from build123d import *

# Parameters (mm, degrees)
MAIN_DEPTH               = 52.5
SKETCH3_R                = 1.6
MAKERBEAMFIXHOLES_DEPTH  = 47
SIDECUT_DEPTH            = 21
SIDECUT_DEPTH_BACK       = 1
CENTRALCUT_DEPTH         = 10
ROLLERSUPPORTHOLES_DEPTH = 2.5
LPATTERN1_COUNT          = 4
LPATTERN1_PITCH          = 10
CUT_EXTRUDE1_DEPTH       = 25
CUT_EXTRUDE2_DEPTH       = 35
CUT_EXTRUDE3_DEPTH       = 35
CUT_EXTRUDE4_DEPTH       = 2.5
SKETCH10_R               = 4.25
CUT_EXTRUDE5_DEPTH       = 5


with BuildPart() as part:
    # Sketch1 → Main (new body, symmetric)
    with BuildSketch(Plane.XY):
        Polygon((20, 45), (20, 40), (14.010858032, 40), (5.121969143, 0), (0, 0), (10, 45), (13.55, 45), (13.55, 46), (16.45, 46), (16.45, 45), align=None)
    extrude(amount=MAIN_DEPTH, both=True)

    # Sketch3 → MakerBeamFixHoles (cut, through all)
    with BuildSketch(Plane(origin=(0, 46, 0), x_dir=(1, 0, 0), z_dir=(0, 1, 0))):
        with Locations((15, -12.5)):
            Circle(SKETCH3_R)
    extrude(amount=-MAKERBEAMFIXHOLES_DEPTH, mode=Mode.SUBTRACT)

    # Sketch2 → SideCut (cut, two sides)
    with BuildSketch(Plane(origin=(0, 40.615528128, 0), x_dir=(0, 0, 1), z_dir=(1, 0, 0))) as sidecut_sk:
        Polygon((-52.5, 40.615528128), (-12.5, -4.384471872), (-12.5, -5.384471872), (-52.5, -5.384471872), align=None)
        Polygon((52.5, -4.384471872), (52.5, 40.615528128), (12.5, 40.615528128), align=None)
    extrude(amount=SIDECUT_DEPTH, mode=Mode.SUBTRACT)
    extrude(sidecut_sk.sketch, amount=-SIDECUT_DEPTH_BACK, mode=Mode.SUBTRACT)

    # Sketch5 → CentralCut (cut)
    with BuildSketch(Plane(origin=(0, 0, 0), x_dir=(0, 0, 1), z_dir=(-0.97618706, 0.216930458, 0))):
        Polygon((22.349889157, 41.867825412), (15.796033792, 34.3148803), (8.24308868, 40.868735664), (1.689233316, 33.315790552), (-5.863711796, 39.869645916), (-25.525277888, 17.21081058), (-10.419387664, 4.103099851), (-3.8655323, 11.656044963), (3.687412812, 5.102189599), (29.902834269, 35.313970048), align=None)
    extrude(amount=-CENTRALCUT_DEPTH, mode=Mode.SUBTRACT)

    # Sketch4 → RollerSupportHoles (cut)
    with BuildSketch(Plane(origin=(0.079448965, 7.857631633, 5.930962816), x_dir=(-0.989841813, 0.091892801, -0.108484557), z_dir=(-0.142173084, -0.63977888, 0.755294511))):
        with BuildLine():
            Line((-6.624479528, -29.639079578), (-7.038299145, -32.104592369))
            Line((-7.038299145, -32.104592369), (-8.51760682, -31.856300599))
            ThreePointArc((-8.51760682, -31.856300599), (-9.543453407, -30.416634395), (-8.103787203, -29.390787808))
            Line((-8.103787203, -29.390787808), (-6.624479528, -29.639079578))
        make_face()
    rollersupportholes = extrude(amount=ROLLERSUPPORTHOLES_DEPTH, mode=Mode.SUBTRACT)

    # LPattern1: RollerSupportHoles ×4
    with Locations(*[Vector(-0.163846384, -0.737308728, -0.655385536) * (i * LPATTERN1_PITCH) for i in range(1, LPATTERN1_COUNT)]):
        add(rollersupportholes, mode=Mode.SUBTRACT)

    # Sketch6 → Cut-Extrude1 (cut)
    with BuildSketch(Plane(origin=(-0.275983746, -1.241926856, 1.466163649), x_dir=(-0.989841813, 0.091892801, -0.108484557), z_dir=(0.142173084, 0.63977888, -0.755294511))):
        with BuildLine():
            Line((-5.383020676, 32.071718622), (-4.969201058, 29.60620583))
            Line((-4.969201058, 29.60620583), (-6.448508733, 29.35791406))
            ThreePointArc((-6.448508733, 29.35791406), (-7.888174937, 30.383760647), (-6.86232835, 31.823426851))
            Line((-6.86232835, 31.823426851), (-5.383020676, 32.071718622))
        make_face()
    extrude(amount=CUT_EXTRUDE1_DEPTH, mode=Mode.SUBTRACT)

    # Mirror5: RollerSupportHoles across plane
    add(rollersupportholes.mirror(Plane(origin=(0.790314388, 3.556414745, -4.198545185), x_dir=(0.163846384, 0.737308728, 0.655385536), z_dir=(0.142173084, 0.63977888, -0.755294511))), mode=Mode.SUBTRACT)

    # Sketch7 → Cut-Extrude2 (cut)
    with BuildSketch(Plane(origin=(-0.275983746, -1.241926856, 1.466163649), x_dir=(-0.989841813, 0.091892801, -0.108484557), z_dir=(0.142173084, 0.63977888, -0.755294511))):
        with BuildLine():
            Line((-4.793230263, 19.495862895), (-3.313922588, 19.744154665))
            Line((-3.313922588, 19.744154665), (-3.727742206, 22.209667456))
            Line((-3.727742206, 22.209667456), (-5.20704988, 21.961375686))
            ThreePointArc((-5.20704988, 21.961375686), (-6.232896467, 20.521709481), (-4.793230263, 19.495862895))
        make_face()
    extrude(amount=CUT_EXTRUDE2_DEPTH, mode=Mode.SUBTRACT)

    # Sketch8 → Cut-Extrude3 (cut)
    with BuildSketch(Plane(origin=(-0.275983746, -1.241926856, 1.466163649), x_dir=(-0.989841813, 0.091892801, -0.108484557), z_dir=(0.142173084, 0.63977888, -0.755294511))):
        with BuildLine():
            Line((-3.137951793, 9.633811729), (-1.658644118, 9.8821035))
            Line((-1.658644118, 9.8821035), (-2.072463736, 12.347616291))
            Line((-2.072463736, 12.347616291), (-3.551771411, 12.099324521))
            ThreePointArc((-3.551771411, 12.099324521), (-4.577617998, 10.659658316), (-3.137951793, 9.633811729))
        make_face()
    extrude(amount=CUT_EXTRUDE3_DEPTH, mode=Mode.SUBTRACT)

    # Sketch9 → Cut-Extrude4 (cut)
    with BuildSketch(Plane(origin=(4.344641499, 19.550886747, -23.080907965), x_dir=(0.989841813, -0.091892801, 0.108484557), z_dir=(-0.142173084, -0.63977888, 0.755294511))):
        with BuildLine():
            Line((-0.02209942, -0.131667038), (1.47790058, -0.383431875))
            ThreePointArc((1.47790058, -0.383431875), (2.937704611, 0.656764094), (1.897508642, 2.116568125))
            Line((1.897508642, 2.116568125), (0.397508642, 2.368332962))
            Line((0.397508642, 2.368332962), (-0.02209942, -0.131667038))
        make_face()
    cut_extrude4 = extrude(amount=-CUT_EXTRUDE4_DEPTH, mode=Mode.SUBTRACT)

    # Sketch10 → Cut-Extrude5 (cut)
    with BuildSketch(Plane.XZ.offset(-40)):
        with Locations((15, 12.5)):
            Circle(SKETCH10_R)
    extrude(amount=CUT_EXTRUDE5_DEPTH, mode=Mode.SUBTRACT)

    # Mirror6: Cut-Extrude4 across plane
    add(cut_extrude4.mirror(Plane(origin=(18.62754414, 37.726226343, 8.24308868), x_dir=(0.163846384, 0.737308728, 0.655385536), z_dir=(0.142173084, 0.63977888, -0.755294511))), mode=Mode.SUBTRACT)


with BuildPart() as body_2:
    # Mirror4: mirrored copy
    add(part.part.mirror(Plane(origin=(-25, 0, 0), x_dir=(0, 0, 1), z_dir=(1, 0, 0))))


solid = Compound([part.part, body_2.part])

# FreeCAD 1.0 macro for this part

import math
import FreeCAD as App
import Part
import Sketcher
from FreeCAD import Vector
Q = App.Units.Quantity


def add_polygon(sketch, points):
    """Adds a closed chain of lines whose ends are joined by coincident constraints."""
    first, n = sketch.GeometryCount, len(points)
    for a, b in zip(points, points[1:] + points[:1]):
        sketch.addGeometry(Part.LineSegment(App.Vector(*a, 0), App.Vector(*b, 0)), False)
    for i in range(n):
        sketch.addConstraint(Sketcher.Constraint("Coincident", first + i, 2, first + (i + 1) % n, 1))

doc = App.newDocument("Part")
params = doc.addObject("Spreadsheet::Sheet", "Params")
for row, (alias, value) in enumerate([
    ("sketch1_height", "5 mm"),
    ("sketch1_height2", "1 mm"),
    ("sketch1_width", "2.9 mm"),
    ("pad1_length", "105 mm"),
    ("sketch2_diameter", "3.2 mm"),
    ("sketch3_width", "46 mm"),
    ("sketch3_width2", "1 mm"),
    ("sketch3_height", "40 mm"),
    ("sketch4_length", "10 mm"),
    ("sketch4_length2", "30 mm"),
    ("pocket3_length", "10 mm"),
    ("sketch5_radius", "1.25 mm"),
    ("sketch5_length", "1.5 mm"),
    ("pocket4_length", "2.5 mm"),
    ("linearpattern_pitch", "10 mm"),
    ("sketch6_radius", "1.25 mm"),
    ("sketch6_length", "1.5 mm"),
    ("pocket5_length", "25 mm"),
    ("sketch7_radius", "1.25 mm"),
    ("sketch7_length", "1.5 mm"),
    ("pocket6_length", "35 mm"),
    ("sketch8_radius", "1.25 mm"),
    ("sketch8_length", "1.5 mm"),
    ("pocket7_length", "35 mm"),
    ("pocket8_length", "2.5 mm"),
    ("sketch10_diameter", "8.5 mm"),
    ("pocket9_length", "5 mm"),
], start=1):
    params.set(f"A{row}", alias)
    params.set(f"B{row}", "=" + value)
    params.setAlias(f"B{row}", alias)

body = doc.addObject("PartDesign::Body", "Body")

sketch1 = body.newObject("Sketcher::SketchObject", "Sketch")
sketch1.AttachmentSupport = (doc.getObject("XY_Plane"), [""])
sketch1.MapMode = "FlatFace"
add_polygon(sketch1, [(20, 40), (20, 45), (16.45, 45), (16.45, 46), (13.55, 46), (13.55, 45), (10, 45), (0, 0), (5.121969, 0), (14.010858, 40)])
sketch1.addConstraint([
    Sketcher.Constraint("Vertical", 0),
    Sketcher.Constraint("Horizontal", 1),
    Sketcher.Constraint("Vertical", 2),
    Sketcher.Constraint("Horizontal", 3),
    Sketcher.Constraint("Vertical", 4),
    Sketcher.Constraint("Horizontal", 5),
    Sketcher.Constraint("Horizontal", 7),
    Sketcher.Constraint("Horizontal", 9),
    Sketcher.Constraint("Coincident", 6, 2, -1, 1),
    Sketcher.Constraint("Parallel", 6, 8),
    Sketcher.Constraint("Horizontal", 1, 2, 4, 2),
    Sketcher.Constraint("Equal", 1, 5),
    Sketcher.Constraint("DistanceY", 0, 1, 0, 2, Q("5 mm")),
    Sketcher.Constraint("DistanceY", 2, 1, 2, 2, Q("1 mm")),
    Sketcher.Constraint("DistanceX", 3, 2, 3, 1, Q("2.9 mm")),
    Sketcher.Constraint("DistanceX", -1, 1, 0, 2, Q("20 mm")),
    Sketcher.Constraint("DistanceY", -1, 1, 0, 2, Q("45 mm")),
    Sketcher.Constraint("DistanceX", -1, 1, 5, 2, Q("10 mm")),
    Sketcher.Constraint("DistanceX", 7, 1, 7, 2, Q("5.121969 mm")),
])
sketch1.setExpression("Constraints[22]", "Params.sketch1_height")
sketch1.setExpression("Constraints[23]", "Params.sketch1_height2")
sketch1.setExpression("Constraints[24]", "Params.sketch1_width")
pad1 = body.newObject("PartDesign::Pad", "Pad")
pad1.Profile = sketch1
pad1.setExpression("Length", "Params.pad1_length")
pad1.Midplane = True

sketch2 = body.newObject("Sketcher::SketchObject", "Sketch001")
sketch2.AttachmentSupport = (doc.getObject("XZ_Plane"), [""])
sketch2.MapMode = "FlatFace"
sketch2.AttachmentOffset = App.Placement(Vector(0, 0, -46), App.Rotation())
sketch2.addGeometry(Part.Circle(Vector(15, 12.5, 0), Vector(0, 0, 1), 1.6), False)
sketch2.addConstraint([
    Sketcher.Constraint("Diameter", 0, Q("3.2 mm")),
    Sketcher.Constraint("DistanceX", -1, 1, 0, 3, Q("15 mm")),
    Sketcher.Constraint("DistanceY", -1, 1, 0, 3, Q("12.5 mm")),
])
sketch2.setExpression("Constraints[0]", "Params.sketch2_diameter")
pocket1 = body.newObject("PartDesign::Pocket", "Pocket")
pocket1.Profile = sketch2
pocket1.Type = "ThroughAll"
pocket1.Reversed = True

sketch3 = body.newObject("Sketcher::SketchObject", "Sketch002")
sketch3.AttachmentSupport = (doc.getObject("YZ_Plane"), [""])
sketch3.MapMode = "FlatFace"
add_polygon(sketch3, [(45, -12.5), (0, -52.5), (46, -52.5), (46, -12.5)])
add_polygon(sketch3, [(45, 52.5), (0, 52.5), (0, 12.5)])
sketch3.addConstraint([
    Sketcher.Constraint("Horizontal", 1),
    Sketcher.Constraint("Vertical", 2),
    Sketcher.Constraint("Horizontal", 3),
    Sketcher.Constraint("Horizontal", 4),
    Sketcher.Constraint("Vertical", 5),
    Sketcher.Constraint("Symmetric", 0, 2, 4, 2, -1, 1),
    Sketcher.Constraint("PointOnObject", 0, 2, -2),
    Sketcher.Constraint("Parallel", 0, 6),
    Sketcher.Constraint("Vertical", 3, 2, 6, 2),
    Sketcher.Constraint("DistanceX", 1, 1, 1, 2, Q("46 mm")),
    Sketcher.Constraint("DistanceX", 3, 2, 3, 1, Q("1 mm")),
    Sketcher.Constraint("DistanceY", 2, 1, 2, 2, Q("40 mm")),
    Sketcher.Constraint("DistanceY", 3, 2, 4, 2, Q("65 mm")),
])
sketch3.setExpression("Constraints[16]", "Params.sketch3_width")
sketch3.setExpression("Constraints[17]", "Params.sketch3_width2")
sketch3.setExpression("Constraints[18]", "Params.sketch3_height")
pocket2 = body.newObject("PartDesign::Pocket", "Pocket001")
pocket2.Profile = sketch3
pocket2.Type = "ThroughAll"
pocket2.Midplane = True

sketch4 = body.newObject("Sketcher::SketchObject", "Sketch003")
sketch4.Placement = App.Placement(Vector(0, 0, 0), App.Rotation(Vector(0, 0, 1), Vector(0.216930458, 0.97618706, 0), Vector(-0.97618706, 0.216930458, 0), "ZXY"))
add_polygon(sketch4, [(22.349889, 41.867825), (15.796034, 34.31488), (8.243089, 40.868736), (1.689233, 33.315791), (-5.863712, 39.869646), (-25.525278, 17.210811), (-10.419388, 4.1031), (-3.865532, 11.656045), (3.687413, 5.10219), (29.902834, 35.31397)])
sketch4.addConstraint([
    Sketcher.Constraint("Perpendicular", 0, 1),
    Sketcher.Constraint("Perpendicular", 1, 2),
    Sketcher.Constraint("Perpendicular", 2, 3),
    Sketcher.Constraint("Perpendicular", 3, 4),
    Sketcher.Constraint("Perpendicular", 4, 5),
    Sketcher.Constraint("Perpendicular", 5, 6),
    Sketcher.Constraint("Perpendicular", 6, 7),
    Sketcher.Constraint("Perpendicular", 7, 8),
    Sketcher.Constraint("Perpendicular", 8, 9),
    Sketcher.Constraint("Equal", 0, 1),
    Sketcher.Constraint("Equal", 1, 2),
    Sketcher.Constraint("Equal", 2, 3),
    Sketcher.Constraint("Equal", 3, 6),
    Sketcher.Constraint("Equal", 6, 7),
    Sketcher.Constraint("Equal", 7, 9),
    Sketcher.Constraint("Distance", 0, Q("10 mm")),
    Sketcher.Constraint("Distance", 4, Q("30 mm")),
    Sketcher.Constraint("DistanceY", -1, 1, 5, 2, Q("4.1031 mm")),
    Sketcher.Constraint("DistanceX", 2, 2, 0, 2, Q("14.1068 mm")),
    Sketcher.Constraint("DistanceX", -1, 1, 1, 2, Q("8.243089 mm")),
])
sketch4.setExpression("Constraints[25]", "Params.sketch4_length")
sketch4.setExpression("Constraints[26]", "Params.sketch4_length2")
pocket3 = body.newObject("PartDesign::Pocket", "Pocket002")
pocket3.Profile = sketch4
pocket3.setExpression("Length", "Params.pocket3_length")

sketch5 = body.newObject("Sketcher::SketchObject", "Sketch004")
sketch5.Placement = App.Placement(Vector(0.079449, 7.857632, 5.930963), App.Rotation(Vector(-0.989841813, 0.091892801, -0.108484557), Vector(0, -0.763045672, -0.646344569), Vector(-0.142173084, -0.63977888, 0.755294511), "ZXY"))
sketch5.addGeometry([
    Part.LineSegment(Vector(-7.038299, -32.104592, 0), Vector(-6.62448, -29.63908, 0)),
    Part.LineSegment(Vector(-6.62448, -29.63908, 0), Vector(-8.103787, -29.390788, 0)),
    Part.ArcOfCircle(Part.Circle(Vector(-8.310697, -30.623544, 0), Vector(0, 0, 1), 1.25), math.radians(80.4721), math.radians(260.4721)),
    Part.LineSegment(Vector(-8.517607, -31.856301, 0), Vector(-7.038299, -32.104592, 0)),
], False)
sketch5.addConstraint([
    Sketcher.Constraint("Coincident", 0, 2, 1, 1),
    Sketcher.Constraint("Tangent", 1, 2, 2, 1),
    Sketcher.Constraint("Tangent", 2, 2, 3, 1),
    Sketcher.Constraint("Coincident", 3, 2, 0, 1),
    Sketcher.Constraint("Perpendicular", 0, 1),
    Sketcher.Constraint("Parallel", 1, 3),
    Sketcher.Constraint("Radius", 2, Q("1.25 mm")),
    Sketcher.Constraint("Distance", 1, Q("1.5 mm")),
    Sketcher.Constraint("DistanceY", 2, 2, -1, 1, Q("31.856301 mm")),
    Sketcher.Constraint("DistanceX", 3, 2, -1, 1, Q("7.038299 mm")),
    Sketcher.Constraint("DistanceX", 0, 2, -1, 1, Q("6.62448 mm")),
])
sketch5.setExpression("Constraints[6]", "Params.sketch5_radius")
sketch5.setExpression("Constraints[7]", "Params.sketch5_length")
pocket4 = body.newObject("PartDesign::Pocket", "Pocket003")
pocket4.Profile = sketch5
pocket4.setExpression("Length", "Params.pocket4_length")
pocket4.Reversed = True
doc.recompute()

datumline = body.newObject("PartDesign::Line", "DatumLine")
datumline.Placement = App.Placement(Vector(0, 0, 0), App.Rotation(Vector(0, 0, 1), Vector(-0.163846384, -0.737308728, -0.655385536)))
linearpattern = body.newObject("PartDesign::LinearPattern", "LinearPattern")
linearpattern.Originals = [pocket4]
linearpattern.Direction = (datumline, [""])
linearpattern.Mode = "offset"
linearpattern.setExpression("Offset", "Params.linearpattern_pitch")
linearpattern.Occurrences = 4
body.Tip = linearpattern

sketch6 = body.newObject("Sketcher::SketchObject", "Sketch005")
sketch6.Placement = App.Placement(Vector(-0.275984, -1.241927, 1.466164), App.Rotation(Vector(-0.989841813, 0.091892801, -0.108484557), Vector(0, 0.763045672, 0.646344569), Vector(0.142173084, 0.63977888, -0.755294511), "ZXY"))
sketch6.addGeometry([
    Part.LineSegment(Vector(-4.969201, 29.606206, 0), Vector(-5.383021, 32.071719, 0)),
    Part.LineSegment(Vector(-5.383021, 32.071719, 0), Vector(-6.862328, 31.823427, 0)),
    Part.ArcOfCircle(Part.Circle(Vector(-6.655419, 30.59067, 0), Vector(0, 0, 1), 1.25), math.radians(99.5279), math.radians(279.5279)),
    Part.LineSegment(Vector(-6.448509, 29.357914, 0), Vector(-4.969201, 29.606206, 0)),
], False)
sketch6.addConstraint([
    Sketcher.Constraint("Coincident", 0, 2, 1, 1),
    Sketcher.Constraint("Tangent", 1, 2, 2, 1),
    Sketcher.Constraint("Tangent", 2, 2, 3, 1),
    Sketcher.Constraint("Coincident", 3, 2, 0, 1),
    Sketcher.Constraint("Perpendicular", 0, 1),
    Sketcher.Constraint("Parallel", 1, 3),
    Sketcher.Constraint("Radius", 2, Q("1.25 mm")),
    Sketcher.Constraint("Distance", 1, Q("1.5 mm")),
    Sketcher.Constraint("DistanceX", 3, 2, -1, 1, Q("4.969201 mm")),
    Sketcher.Constraint("DistanceX", 2, 3, -1, 1, Q("6.655419 mm")),
    Sketcher.Constraint("DistanceY", -1, 1, 2, 3, Q("30.59067 mm")),
])
sketch6.setExpression("Constraints[6]", "Params.sketch6_radius")
sketch6.setExpression("Constraints[7]", "Params.sketch6_length")
pocket5 = body.newObject("PartDesign::Pocket", "Pocket004")
pocket5.Profile = sketch6
pocket5.setExpression("Length", "Params.pocket5_length")
pocket5.Reversed = True
doc.recompute()

datumplane = body.newObject("PartDesign::Plane", "DatumPlane")
datumplane.Placement = App.Placement(Vector(0.790314, 3.556415, -4.198545), App.Rotation(Vector(0, -0.763045672, -0.646344569), Vector(-0.989841812, 0.091892801, -0.108484556), Vector(0.142173084, 0.63977888, -0.755294511), "ZXY"))
mirrored = body.newObject("PartDesign::Mirrored", "Mirrored")
mirrored.Originals = [pocket4]
mirrored.MirrorPlane = (datumplane, [""])
body.Tip = mirrored

sketch7 = body.newObject("Sketcher::SketchObject", "Sketch006")
sketch7.Placement = App.Placement(Vector(-0.275984, -1.241927, 1.466164), App.Rotation(Vector(-0.989841813, 0.091892801, -0.108484557), Vector(0, 0.763045672, 0.646344569), Vector(0.142173084, 0.63977888, -0.755294511), "ZXY"))
sketch7.addGeometry([
    Part.LineSegment(Vector(-4.79323, 19.495863, 0), Vector(-3.313923, 19.744155, 0)),
    Part.LineSegment(Vector(-3.313923, 19.744155, 0), Vector(-3.727742, 22.209667, 0)),
    Part.LineSegment(Vector(-3.727742, 22.209667, 0), Vector(-5.20705, 21.961376, 0)),
    Part.ArcOfCircle(Part.Circle(Vector(-5.00014, 20.728619, 0), Vector(0, 0, 1), 1.25), math.radians(99.5279), math.radians(279.5279)),
], False)
sketch7.addConstraint([
    Sketcher.Constraint("Coincident", 0, 2, 1, 1),
    Sketcher.Constraint("Coincident", 1, 2, 2, 1),
    Sketcher.Constraint("Tangent", 2, 2, 3, 1),
    Sketcher.Constraint("Tangent", 3, 2, 0, 1),
    Sketcher.Constraint("Perpendicular", 0, 1),
    Sketcher.Constraint("Perpendicular", 1, 2),
    Sketcher.Constraint("Radius", 3, Q("1.25 mm")),
    Sketcher.Constraint("Distance", 0, Q("1.5 mm")),
    Sketcher.Constraint("DistanceX", 3, 3, -1, 1, Q("5.00014 mm")),
    Sketcher.Constraint("DistanceY", -1, 1, 3, 3, Q("20.728619 mm")),
    Sketcher.Constraint("DistanceX", 2, 2, -1, 1, Q("5.20705 mm")),
])
sketch7.setExpression("Constraints[6]", "Params.sketch7_radius")
sketch7.setExpression("Constraints[7]", "Params.sketch7_length")
pocket6 = body.newObject("PartDesign::Pocket", "Pocket005")
pocket6.Profile = sketch7
pocket6.setExpression("Length", "Params.pocket6_length")
pocket6.Reversed = True

sketch8 = body.newObject("Sketcher::SketchObject", "Sketch007")
sketch8.Placement = App.Placement(Vector(-0.275984, -1.241927, 1.466164), App.Rotation(Vector(-0.989841813, 0.091892801, -0.108484557), Vector(0, 0.763045672, 0.646344569), Vector(0.142173084, 0.63977888, -0.755294511), "ZXY"))
sketch8.addGeometry([
    Part.LineSegment(Vector(-3.137952, 9.633812, 0), Vector(-1.658644, 9.882104, 0)),
    Part.LineSegment(Vector(-1.658644, 9.882104, 0), Vector(-2.072464, 12.347616, 0)),
    Part.LineSegment(Vector(-2.072464, 12.347616, 0), Vector(-3.551771, 12.099325, 0)),
    Part.ArcOfCircle(Part.Circle(Vector(-3.344862, 10.866568, 0), Vector(0, 0, 1), 1.25), math.radians(99.5279), math.radians(279.5279)),
], False)
sketch8.addConstraint([
    Sketcher.Constraint("Coincident", 0, 2, 1, 1),
    Sketcher.Constraint("Coincident", 1, 2, 2, 1),
    Sketcher.Constraint("Tangent", 2, 2, 3, 1),
    Sketcher.Constraint("Tangent", 3, 2, 0, 1),
    Sketcher.Constraint("Perpendicular", 0, 1),
    Sketcher.Constraint("Perpendicular", 1, 2),
    Sketcher.Constraint("Radius", 3, Q("1.25 mm")),
    Sketcher.Constraint("Distance", 0, Q("1.5 mm")),
    Sketcher.Constraint("DistanceX", 3, 3, -1, 1, Q("3.344862 mm")),
    Sketcher.Constraint("DistanceY", -1, 1, 3, 3, Q("10.866568 mm")),
    Sketcher.Constraint("DistanceX", 2, 2, -1, 1, Q("3.551771 mm")),
])
sketch8.setExpression("Constraints[6]", "Params.sketch8_radius")
sketch8.setExpression("Constraints[7]", "Params.sketch8_length")
pocket7 = body.newObject("PartDesign::Pocket", "Pocket006")
pocket7.Profile = sketch8
pocket7.setExpression("Length", "Params.pocket7_length")
pocket7.Reversed = True

sketch9 = body.newObject("Sketcher::SketchObject", "Sketch008")
sketch9.Placement = App.Placement(Vector(4.344641, 19.550887, -23.080908), App.Rotation(Vector(0.989841813, -0.091892801, 0.108484557), Vector(0, 0.763045672, 0.646344569), Vector(-0.142173084, -0.63977888, 0.755294511), "ZXY"))
sketch9.addGeometry([
    Part.LineSegment(Vector(-0.022099, -0.131667, 0), Vector(1.477901, -0.383432, 0)),
    Part.ArcOfCircle(Part.Circle(Vector(1.687705, 0.866568, 0), Vector(0, 0, 1), 1.267485), math.radians(-99.5279), math.radians(80.4721)),
    Part.LineSegment(Vector(1.897509, 2.116568, 0), Vector(0.397509, 2.368333, 0)),
    Part.LineSegment(Vector(0.397509, 2.368333, 0), Vector(-0.022099, -0.131667, 0)),
], False)
sketch9.addConstraint([
    Sketcher.Constraint("Tangent", 0, 2, 1, 1),
    Sketcher.Constraint("Tangent", 1, 2, 2, 1),
    Sketcher.Constraint("Coincident", 2, 2, 3, 1),
    Sketcher.Constraint("Coincident", 3, 2, 0, 1),
    Sketcher.Constraint("Parallel", 0, 2),
    Sketcher.Constraint("Perpendicular", 2, 3),
    Sketcher.Constraint("DistanceY", 0, 2, 1, 2, Q("2.5 mm")),
    Sketcher.Constraint("DistanceX", 2, 2, 1, 2, Q("1.5 mm")),
    Sketcher.Constraint("Radius", 1, Q("1.267485 mm")),
    Sketcher.Constraint("DistanceX", -1, 1, 0, 2, Q("1.477901 mm")),
    Sketcher.Constraint("DistanceY", -1, 1, 1, 3, Q("0.866568 mm")),
])
pocket8 = body.newObject("PartDesign::Pocket", "Pocket007")
pocket8.Profile = sketch9
pocket8.setExpression("Length", "Params.pocket8_length")

sketch10 = body.newObject("Sketcher::SketchObject", "Sketch009")
sketch10.AttachmentSupport = (doc.getObject("XZ_Plane"), [""])
sketch10.MapMode = "FlatFace"
sketch10.AttachmentOffset = App.Placement(Vector(0, 0, -40), App.Rotation())
sketch10.addGeometry(Part.Circle(Vector(15, 12.5, 0), Vector(0, 0, 1), 4.25), False)
sketch10.addConstraint([
    Sketcher.Constraint("Diameter", 0, Q("8.5 mm")),
    Sketcher.Constraint("DistanceX", -1, 1, 0, 3, Q("15 mm")),
    Sketcher.Constraint("DistanceY", -1, 1, 0, 3, Q("12.5 mm")),
])
sketch10.setExpression("Constraints[0]", "Params.sketch10_diameter")
pocket9 = body.newObject("PartDesign::Pocket", "Pocket008")
pocket9.Profile = sketch10
pocket9.setExpression("Length", "Params.pocket9_length")
pocket9.Reversed = True
doc.recompute()

datumplane2 = body.newObject("PartDesign::Plane", "DatumPlane001")
datumplane2.Placement = App.Placement(Vector(2.922911, 13.153098, -15.527963), App.Rotation(Vector(0, -0.763045672, -0.646344569), Vector(-0.989841812, 0.091892801, -0.108484556), Vector(0.142173084, 0.63977888, -0.755294511), "ZXY"))
mirrored2 = body.newObject("PartDesign::Mirrored", "Mirrored001")
mirrored2.Originals = [pocket8]
mirrored2.MirrorPlane = (datumplane2, [""])
body.Tip = mirrored2
body2 = doc.addObject("PartDesign::Body", "Body001")
doc.recompute()

mirroring = doc.addObject("Part::Mirroring", "Mirroring")
mirroring.Source = body
mirroring.Base = Vector(-25, 0, 0)
mirroring.Normal = Vector(1, 0, 0)
body2.BaseFeature = mirroring
doc.recompute()
mirroring.Visibility = False

doc.recompute()
